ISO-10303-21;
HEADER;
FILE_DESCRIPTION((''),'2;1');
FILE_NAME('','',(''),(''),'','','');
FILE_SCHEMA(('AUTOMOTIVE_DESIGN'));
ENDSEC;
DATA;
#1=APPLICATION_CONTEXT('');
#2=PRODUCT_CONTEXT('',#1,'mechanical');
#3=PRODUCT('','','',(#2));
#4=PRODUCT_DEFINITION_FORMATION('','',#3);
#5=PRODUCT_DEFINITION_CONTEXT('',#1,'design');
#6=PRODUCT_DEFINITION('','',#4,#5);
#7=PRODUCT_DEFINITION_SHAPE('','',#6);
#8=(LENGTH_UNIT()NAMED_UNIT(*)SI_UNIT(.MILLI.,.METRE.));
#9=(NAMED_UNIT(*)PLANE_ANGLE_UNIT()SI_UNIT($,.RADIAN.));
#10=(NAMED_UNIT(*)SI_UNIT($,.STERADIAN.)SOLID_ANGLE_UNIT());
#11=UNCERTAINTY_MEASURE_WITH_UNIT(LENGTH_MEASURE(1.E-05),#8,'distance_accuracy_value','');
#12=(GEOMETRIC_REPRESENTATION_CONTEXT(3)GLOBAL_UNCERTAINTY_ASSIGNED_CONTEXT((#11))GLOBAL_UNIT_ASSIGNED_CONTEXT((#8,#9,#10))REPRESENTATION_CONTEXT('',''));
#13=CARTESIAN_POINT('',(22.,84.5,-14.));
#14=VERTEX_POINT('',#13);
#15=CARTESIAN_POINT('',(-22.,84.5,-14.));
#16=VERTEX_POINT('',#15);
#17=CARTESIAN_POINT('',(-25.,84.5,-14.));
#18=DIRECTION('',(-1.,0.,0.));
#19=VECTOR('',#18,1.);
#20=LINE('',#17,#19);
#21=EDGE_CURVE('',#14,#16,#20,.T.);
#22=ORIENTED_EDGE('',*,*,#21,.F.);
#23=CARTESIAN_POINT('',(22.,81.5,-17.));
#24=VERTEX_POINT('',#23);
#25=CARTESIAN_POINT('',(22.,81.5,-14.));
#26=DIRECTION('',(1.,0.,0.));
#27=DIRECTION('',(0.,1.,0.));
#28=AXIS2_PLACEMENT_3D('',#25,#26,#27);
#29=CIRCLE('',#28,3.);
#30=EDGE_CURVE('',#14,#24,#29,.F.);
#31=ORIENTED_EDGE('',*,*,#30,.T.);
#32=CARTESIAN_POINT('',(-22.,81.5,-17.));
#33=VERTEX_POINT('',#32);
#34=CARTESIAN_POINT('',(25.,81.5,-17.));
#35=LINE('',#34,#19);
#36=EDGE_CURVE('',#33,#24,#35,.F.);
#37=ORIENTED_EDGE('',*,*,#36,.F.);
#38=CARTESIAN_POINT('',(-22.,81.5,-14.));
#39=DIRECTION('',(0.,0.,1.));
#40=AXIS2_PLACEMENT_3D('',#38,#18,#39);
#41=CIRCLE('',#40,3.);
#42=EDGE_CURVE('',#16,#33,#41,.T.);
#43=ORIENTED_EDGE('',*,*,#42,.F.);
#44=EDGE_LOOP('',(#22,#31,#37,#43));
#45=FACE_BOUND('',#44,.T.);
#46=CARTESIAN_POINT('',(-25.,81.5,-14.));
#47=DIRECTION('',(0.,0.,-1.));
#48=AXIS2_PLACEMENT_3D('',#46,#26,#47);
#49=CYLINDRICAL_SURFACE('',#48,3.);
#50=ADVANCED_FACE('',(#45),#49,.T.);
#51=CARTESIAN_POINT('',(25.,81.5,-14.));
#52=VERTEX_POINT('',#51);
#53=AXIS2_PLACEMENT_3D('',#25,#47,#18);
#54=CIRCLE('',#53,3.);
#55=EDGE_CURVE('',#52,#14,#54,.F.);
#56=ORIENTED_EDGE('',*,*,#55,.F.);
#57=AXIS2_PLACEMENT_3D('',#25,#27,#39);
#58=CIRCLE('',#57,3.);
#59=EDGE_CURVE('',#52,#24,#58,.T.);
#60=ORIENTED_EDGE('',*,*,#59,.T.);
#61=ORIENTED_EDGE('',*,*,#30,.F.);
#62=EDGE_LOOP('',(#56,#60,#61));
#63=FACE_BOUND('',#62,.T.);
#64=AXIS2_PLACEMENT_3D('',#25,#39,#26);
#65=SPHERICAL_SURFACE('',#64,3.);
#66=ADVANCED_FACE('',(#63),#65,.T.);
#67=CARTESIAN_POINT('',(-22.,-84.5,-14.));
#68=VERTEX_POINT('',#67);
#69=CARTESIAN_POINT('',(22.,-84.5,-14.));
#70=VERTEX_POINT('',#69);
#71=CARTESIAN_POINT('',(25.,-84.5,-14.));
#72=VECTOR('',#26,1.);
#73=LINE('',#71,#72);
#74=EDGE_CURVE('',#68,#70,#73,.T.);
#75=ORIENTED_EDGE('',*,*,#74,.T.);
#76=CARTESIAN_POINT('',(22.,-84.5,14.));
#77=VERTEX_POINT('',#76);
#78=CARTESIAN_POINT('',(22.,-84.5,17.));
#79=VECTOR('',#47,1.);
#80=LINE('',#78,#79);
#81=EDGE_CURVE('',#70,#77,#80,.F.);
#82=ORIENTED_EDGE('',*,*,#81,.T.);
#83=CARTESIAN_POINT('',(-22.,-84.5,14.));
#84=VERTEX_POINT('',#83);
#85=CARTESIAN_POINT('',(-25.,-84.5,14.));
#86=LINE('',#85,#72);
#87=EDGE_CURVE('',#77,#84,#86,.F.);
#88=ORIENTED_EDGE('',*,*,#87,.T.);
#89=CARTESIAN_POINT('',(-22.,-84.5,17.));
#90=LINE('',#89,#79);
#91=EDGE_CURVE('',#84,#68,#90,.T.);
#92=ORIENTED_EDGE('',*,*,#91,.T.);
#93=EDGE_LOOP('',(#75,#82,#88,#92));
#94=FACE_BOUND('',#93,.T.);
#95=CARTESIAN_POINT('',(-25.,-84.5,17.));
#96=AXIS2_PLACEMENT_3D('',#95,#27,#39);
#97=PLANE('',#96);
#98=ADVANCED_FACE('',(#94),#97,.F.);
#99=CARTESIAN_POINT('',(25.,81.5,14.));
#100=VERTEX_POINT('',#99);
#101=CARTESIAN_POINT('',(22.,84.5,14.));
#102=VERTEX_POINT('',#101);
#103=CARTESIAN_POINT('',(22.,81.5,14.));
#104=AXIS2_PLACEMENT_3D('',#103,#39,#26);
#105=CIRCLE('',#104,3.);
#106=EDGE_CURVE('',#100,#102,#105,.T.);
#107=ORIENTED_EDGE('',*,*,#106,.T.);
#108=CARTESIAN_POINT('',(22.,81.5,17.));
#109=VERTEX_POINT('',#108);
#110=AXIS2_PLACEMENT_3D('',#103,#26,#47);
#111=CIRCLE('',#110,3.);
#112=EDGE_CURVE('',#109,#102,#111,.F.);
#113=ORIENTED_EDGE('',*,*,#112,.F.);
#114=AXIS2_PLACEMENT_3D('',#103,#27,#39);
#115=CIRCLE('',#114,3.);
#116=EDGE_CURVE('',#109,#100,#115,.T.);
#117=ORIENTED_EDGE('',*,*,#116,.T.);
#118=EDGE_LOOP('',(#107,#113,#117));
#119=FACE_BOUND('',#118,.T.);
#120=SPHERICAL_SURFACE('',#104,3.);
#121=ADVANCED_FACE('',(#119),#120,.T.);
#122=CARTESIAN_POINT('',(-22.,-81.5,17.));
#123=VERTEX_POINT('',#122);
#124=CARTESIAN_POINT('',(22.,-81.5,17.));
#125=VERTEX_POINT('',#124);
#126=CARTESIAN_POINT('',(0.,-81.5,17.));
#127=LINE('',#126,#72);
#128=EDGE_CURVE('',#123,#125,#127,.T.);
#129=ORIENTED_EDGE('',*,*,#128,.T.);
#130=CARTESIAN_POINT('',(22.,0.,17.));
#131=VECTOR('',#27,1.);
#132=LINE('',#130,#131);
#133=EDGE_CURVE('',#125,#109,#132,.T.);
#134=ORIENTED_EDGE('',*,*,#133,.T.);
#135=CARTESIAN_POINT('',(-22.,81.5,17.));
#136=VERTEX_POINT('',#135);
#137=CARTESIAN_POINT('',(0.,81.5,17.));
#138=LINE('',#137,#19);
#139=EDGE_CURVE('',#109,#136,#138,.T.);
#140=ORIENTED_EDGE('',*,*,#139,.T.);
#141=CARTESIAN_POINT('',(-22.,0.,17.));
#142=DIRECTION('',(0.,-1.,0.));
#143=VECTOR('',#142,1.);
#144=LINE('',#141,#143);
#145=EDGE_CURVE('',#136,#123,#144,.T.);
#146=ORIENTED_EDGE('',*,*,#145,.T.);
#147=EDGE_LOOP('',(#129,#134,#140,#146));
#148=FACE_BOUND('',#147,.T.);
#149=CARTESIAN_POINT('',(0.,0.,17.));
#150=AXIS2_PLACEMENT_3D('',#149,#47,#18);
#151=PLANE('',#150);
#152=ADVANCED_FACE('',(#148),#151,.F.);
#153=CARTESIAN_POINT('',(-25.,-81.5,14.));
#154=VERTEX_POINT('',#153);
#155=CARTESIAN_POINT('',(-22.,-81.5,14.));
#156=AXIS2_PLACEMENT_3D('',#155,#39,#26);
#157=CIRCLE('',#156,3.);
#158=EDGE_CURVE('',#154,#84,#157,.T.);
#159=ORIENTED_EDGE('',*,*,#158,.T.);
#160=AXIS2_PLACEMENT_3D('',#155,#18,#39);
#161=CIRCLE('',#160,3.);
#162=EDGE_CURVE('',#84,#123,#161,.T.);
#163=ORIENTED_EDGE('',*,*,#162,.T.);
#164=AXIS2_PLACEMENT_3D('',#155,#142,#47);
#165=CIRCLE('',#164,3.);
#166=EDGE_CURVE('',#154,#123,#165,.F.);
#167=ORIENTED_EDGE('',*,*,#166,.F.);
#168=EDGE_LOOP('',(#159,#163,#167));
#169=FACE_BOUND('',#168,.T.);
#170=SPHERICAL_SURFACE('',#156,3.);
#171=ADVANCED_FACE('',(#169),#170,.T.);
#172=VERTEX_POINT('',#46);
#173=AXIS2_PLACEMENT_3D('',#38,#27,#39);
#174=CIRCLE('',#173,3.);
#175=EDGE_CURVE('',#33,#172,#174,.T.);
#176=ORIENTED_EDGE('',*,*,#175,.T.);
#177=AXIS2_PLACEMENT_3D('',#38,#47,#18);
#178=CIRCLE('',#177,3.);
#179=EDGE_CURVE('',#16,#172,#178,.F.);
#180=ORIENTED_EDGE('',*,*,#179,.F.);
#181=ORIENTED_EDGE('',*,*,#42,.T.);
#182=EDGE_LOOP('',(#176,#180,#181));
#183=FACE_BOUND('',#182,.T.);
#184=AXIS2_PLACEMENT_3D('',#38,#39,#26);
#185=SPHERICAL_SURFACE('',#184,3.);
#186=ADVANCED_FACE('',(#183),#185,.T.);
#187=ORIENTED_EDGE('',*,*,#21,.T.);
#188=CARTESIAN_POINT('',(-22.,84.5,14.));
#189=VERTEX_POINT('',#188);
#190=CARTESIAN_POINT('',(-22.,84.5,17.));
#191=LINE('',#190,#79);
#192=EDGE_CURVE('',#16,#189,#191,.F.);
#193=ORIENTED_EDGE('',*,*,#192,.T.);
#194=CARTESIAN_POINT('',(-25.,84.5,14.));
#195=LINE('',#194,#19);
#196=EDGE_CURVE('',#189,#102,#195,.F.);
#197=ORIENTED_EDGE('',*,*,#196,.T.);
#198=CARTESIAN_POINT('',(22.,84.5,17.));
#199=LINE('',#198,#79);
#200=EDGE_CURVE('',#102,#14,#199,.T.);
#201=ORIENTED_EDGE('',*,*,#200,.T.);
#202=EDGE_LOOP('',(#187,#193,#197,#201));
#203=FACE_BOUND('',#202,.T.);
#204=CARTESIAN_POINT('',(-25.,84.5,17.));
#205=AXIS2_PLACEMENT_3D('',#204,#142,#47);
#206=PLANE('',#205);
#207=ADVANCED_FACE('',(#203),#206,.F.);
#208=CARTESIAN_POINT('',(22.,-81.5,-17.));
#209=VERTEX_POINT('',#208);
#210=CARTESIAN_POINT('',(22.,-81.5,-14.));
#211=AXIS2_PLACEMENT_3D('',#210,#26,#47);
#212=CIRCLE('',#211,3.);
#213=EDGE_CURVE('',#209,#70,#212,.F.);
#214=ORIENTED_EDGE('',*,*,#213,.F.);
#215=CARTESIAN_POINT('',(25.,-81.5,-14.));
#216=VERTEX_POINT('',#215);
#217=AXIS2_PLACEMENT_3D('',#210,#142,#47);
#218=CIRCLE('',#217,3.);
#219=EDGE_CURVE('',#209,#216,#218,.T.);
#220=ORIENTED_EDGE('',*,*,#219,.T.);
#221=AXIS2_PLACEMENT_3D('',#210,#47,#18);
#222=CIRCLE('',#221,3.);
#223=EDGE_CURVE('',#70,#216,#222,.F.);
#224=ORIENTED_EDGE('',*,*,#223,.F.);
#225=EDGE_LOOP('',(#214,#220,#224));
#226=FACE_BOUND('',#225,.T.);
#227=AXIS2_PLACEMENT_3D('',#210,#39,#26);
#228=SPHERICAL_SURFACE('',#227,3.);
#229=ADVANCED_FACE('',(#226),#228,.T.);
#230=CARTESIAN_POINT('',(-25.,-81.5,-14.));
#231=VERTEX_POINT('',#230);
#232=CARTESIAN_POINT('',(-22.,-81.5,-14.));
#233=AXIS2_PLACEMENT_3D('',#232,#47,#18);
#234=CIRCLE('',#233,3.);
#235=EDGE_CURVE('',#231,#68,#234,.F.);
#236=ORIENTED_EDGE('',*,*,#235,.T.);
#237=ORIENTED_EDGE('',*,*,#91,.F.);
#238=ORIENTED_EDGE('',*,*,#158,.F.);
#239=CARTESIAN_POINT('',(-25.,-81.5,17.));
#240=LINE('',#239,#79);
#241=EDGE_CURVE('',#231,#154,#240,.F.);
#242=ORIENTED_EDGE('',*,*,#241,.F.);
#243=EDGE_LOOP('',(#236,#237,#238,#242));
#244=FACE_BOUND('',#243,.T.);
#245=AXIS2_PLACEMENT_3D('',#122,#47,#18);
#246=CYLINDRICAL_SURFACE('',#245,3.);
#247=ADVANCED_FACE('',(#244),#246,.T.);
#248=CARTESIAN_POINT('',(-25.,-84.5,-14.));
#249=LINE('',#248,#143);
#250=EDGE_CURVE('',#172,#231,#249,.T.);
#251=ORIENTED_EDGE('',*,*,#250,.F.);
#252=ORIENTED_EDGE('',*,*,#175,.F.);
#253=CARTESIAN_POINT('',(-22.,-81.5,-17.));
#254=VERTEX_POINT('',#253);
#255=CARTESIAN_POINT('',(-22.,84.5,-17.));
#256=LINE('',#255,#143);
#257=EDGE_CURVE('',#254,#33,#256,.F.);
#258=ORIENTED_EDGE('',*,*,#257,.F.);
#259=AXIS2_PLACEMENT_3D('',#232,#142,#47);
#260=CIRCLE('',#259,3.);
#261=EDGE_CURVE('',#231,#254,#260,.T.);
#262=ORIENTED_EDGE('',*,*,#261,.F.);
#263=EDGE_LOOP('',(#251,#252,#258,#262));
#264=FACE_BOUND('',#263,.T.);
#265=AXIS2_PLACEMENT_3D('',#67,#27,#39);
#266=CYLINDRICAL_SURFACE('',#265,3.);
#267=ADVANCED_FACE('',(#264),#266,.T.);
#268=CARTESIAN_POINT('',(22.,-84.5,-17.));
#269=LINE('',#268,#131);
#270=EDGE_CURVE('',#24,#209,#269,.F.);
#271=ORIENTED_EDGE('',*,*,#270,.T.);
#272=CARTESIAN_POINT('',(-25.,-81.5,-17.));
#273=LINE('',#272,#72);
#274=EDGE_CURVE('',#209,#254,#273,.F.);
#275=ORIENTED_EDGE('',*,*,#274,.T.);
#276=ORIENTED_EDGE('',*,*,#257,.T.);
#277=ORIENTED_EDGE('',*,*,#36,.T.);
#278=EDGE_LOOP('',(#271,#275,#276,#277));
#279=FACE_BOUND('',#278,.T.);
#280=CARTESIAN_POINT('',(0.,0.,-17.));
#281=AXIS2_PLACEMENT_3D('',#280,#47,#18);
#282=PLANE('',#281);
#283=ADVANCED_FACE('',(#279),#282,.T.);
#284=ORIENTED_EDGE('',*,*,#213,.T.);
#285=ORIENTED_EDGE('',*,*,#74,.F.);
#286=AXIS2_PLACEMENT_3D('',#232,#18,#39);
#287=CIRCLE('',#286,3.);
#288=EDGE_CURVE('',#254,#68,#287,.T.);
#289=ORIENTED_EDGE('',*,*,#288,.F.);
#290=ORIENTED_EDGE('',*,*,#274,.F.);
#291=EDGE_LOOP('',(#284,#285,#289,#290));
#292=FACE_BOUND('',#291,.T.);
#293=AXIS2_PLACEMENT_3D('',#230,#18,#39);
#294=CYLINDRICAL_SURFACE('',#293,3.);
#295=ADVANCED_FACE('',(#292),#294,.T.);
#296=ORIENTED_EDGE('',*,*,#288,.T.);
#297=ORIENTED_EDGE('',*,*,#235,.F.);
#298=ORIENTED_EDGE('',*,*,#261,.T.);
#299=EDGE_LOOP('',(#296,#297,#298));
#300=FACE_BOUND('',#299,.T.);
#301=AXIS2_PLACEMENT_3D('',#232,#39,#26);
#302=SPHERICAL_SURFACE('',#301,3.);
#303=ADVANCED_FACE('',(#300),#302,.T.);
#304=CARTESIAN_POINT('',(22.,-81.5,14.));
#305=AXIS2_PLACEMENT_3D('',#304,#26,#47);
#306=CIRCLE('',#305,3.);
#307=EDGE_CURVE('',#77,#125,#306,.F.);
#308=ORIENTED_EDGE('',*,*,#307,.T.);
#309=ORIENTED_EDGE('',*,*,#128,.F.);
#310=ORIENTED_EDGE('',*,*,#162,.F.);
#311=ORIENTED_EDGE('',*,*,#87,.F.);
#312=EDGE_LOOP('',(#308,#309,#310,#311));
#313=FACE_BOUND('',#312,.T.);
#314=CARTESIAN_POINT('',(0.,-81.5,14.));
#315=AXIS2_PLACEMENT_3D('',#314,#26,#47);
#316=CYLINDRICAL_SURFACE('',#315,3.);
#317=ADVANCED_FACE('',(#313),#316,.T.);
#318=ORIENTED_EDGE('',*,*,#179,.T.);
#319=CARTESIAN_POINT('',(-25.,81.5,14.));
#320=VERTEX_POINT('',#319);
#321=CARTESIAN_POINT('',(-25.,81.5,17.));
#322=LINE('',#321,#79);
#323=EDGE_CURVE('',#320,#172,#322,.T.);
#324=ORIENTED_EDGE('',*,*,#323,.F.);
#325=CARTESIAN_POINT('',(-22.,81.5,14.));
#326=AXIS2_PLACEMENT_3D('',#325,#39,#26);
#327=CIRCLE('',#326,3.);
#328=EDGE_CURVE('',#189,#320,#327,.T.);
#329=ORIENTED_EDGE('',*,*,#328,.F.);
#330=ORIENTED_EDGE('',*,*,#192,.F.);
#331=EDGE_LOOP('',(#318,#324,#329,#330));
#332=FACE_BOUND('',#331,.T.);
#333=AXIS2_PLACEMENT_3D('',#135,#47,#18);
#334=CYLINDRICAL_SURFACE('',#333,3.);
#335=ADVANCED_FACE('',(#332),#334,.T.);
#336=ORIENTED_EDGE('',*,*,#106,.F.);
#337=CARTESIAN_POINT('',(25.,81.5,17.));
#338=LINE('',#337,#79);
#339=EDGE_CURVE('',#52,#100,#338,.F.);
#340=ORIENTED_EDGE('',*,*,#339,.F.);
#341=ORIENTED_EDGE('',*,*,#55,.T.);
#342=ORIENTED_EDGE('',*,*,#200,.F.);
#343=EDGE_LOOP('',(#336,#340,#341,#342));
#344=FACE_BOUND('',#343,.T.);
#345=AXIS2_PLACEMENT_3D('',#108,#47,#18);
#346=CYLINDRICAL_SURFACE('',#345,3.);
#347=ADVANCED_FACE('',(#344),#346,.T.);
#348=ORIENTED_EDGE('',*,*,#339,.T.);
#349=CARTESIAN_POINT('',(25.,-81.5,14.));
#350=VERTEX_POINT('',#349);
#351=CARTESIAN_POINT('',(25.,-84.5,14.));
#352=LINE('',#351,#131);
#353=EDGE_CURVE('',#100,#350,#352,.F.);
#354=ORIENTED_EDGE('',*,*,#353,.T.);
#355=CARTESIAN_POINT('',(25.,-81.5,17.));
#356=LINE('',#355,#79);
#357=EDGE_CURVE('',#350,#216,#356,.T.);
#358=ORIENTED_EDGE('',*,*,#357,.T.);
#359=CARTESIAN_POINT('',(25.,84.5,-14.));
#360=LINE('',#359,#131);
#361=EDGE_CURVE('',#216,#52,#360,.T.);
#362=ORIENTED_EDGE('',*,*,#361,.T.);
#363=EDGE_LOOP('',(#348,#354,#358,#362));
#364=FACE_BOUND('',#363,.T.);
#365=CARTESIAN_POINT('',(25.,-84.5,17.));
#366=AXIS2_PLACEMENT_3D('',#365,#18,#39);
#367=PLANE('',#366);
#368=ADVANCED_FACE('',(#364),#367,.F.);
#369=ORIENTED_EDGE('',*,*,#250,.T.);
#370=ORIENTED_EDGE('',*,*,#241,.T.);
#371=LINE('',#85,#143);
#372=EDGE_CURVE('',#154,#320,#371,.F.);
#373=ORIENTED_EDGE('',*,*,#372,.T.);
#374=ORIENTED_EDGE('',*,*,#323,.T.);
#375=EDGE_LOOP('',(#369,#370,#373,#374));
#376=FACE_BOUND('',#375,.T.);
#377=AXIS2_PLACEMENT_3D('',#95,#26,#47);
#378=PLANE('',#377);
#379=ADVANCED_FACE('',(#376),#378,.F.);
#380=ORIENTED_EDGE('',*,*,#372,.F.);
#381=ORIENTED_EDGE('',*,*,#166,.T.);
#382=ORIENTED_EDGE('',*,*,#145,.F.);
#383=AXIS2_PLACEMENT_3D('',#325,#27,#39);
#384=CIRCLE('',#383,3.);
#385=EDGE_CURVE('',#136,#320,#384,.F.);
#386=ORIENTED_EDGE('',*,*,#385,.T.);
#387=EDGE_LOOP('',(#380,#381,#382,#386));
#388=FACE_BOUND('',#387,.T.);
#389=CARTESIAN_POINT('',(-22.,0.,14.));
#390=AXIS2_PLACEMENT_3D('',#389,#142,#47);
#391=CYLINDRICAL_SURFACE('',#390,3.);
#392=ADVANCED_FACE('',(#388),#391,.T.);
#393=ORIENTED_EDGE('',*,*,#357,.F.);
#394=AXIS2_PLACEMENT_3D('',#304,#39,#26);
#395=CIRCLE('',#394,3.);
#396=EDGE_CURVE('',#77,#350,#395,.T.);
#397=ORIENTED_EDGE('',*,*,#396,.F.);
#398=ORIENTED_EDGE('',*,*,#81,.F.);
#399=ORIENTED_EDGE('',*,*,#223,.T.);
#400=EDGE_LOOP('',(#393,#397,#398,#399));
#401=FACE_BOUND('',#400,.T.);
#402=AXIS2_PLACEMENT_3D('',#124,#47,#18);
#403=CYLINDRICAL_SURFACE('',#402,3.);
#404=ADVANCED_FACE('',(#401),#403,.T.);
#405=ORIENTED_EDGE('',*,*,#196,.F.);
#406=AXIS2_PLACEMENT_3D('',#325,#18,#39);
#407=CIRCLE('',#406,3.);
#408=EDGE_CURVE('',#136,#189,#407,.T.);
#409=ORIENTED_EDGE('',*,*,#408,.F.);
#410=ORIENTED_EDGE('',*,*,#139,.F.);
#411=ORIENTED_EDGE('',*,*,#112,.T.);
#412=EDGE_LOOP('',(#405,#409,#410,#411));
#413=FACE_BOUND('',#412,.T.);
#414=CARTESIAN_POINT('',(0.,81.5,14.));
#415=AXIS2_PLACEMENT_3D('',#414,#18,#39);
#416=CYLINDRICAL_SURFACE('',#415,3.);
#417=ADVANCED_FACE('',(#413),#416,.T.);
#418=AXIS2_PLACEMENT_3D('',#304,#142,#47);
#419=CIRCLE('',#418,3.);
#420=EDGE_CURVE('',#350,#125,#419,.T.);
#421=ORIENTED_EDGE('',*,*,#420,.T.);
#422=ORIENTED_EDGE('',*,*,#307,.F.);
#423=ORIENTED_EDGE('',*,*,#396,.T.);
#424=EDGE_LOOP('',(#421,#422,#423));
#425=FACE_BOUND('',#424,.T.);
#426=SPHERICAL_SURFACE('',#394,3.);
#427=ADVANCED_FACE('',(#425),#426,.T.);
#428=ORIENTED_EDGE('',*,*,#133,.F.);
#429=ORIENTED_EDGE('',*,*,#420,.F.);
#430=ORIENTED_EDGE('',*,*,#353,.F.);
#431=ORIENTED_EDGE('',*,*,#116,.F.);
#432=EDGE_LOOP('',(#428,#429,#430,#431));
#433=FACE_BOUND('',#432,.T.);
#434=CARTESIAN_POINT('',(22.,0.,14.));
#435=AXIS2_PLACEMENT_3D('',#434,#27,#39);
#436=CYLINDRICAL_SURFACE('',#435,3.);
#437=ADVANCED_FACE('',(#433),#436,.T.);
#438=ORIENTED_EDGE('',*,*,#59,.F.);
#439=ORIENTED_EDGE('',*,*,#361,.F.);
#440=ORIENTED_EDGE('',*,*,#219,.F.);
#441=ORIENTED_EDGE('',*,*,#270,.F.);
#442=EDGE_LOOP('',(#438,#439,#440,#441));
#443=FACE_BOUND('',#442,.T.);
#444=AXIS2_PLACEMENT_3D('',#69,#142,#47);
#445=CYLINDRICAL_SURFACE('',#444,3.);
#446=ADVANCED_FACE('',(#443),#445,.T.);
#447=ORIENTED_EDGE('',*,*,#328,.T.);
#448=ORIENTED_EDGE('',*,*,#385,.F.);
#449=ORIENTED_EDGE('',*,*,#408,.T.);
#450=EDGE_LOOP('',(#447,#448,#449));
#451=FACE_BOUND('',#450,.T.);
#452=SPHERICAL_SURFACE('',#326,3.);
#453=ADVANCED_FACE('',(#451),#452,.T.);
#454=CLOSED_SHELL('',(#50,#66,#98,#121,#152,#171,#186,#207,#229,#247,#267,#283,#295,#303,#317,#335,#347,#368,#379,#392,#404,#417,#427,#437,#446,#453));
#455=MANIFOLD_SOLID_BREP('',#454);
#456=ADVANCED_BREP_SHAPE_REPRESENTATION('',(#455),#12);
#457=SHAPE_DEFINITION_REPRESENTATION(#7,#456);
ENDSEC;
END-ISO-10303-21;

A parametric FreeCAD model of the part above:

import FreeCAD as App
import Part
import Sketcher

V = App.Vector
Q = App.Units.Quantity


def add_polygon(sketch, points):
    """Adds a closed chain of lines whose ends are joined by coincident constraints."""
    first, n = sketch.GeometryCount, len(points)
    for a, b in zip(points, points[1:] + points[:1]):
        sketch.addGeometry(Part.LineSegment(App.Vector(*a, 0), App.Vector(*b, 0)), False)
    for i in range(n):
        sketch.addConstraint(Sketcher.Constraint("Coincident", first + i, 2, first + (i + 1) % n, 1))

doc = App.newDocument("Part")
body = doc.addObject("PartDesign::Body", "Body")

# Sketch on XY plane
sketch1 = body.newObject("Sketcher::SketchObject", "Sketch")
sketch1.AttachmentSupport = (doc.getObject("XY_Plane"), [""])
sketch1.MapMode = "FlatFace"
add_polygon(sketch1, [(-25, 84), (-25, -84), (25, -84), (25, 84)])  # lines 0-3
sketch1.addConstraint(Sketcher.Constraint("Vertical", 0))
sketch1.addConstraint(Sketcher.Constraint("Horizontal", 1))
sketch1.addConstraint(Sketcher.Constraint("Vertical", 2))
sketch1.addConstraint(Sketcher.Constraint("Horizontal", 3))
sketch1.addConstraint(Sketcher.Constraint("Symmetric", 0, 2, 2, 2, -1, 1))
sketch1.addConstraint(Sketcher.Constraint("DistanceX", 1, 1, 1, 2, Q("50 mm")))
sketch1.addConstraint(Sketcher.Constraint("DistanceY", 0, 2, 0, 1, Q("169 mm")))
pad1 = body.newObject("PartDesign::Pad", "Pad")
pad1.Profile = sketch1
pad1.Length = 34
pad1.Midplane = True
doc.recompute()

fillet = body.newObject("PartDesign::Fillet", "Fillet")
fillet.Base = (pad1, ["Edge1"])
fillet.UseAllEdges = True
fillet.Radius = 3

doc.recompute()
